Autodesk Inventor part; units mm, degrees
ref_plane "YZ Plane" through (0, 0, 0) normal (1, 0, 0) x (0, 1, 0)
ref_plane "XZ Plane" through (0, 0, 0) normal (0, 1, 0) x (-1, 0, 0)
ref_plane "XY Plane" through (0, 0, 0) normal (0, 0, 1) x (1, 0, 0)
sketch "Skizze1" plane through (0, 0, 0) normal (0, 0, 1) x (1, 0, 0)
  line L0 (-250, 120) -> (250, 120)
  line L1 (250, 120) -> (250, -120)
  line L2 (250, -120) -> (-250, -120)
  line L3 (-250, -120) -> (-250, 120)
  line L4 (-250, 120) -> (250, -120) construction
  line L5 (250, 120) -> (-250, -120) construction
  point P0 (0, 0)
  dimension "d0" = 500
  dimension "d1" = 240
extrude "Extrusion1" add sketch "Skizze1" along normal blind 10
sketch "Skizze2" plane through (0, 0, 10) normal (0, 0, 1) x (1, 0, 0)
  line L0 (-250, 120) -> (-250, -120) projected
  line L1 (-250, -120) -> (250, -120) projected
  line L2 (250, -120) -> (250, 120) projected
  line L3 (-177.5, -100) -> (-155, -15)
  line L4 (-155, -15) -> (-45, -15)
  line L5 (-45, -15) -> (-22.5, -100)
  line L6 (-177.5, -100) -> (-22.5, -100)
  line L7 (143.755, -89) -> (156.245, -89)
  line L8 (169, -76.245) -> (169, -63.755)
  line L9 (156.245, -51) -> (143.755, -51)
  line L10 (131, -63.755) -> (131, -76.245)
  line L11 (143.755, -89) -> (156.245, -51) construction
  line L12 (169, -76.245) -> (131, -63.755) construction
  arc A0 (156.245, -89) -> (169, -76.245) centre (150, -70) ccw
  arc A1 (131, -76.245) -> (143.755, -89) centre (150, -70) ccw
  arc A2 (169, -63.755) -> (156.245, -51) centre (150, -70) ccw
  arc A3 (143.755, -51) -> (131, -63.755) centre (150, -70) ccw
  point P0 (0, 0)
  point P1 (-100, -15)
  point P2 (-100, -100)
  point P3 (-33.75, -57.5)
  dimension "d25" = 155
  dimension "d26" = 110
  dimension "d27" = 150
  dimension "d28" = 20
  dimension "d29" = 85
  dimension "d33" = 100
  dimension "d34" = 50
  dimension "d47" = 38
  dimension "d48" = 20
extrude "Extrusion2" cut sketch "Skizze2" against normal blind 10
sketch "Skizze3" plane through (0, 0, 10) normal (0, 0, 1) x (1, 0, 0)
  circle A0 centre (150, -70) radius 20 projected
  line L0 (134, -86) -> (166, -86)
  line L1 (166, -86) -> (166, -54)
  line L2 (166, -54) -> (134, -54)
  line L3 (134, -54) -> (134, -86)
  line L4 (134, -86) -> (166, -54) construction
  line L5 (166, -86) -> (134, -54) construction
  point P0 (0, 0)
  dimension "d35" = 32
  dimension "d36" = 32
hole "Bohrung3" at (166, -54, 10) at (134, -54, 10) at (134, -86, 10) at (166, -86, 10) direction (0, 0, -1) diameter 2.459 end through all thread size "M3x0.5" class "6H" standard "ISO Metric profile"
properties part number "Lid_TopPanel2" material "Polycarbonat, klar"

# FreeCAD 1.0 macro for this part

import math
import FreeCAD as App
import Part
import Sketcher


def add_polygon(sketch, points):
    """Adds a closed chain of lines whose ends are joined by coincident constraints."""
    first, n = sketch.GeometryCount, len(points)
    for a, b in zip(points, points[1:] + points[:1]):
        sketch.addGeometry(Part.LineSegment(App.Vector(*a, 0), App.Vector(*b, 0)), False)
    for i in range(n):
        sketch.addConstraint(Sketcher.Constraint("Coincident", first + i, 2, first + (i + 1) % n, 1))

doc = App.newDocument("Part")
body = doc.addObject("PartDesign::Body", "Body")

# Sketch on XY plane
sketch1 = body.newObject("Sketcher::SketchObject", "Sketch")
sketch1.AttachmentSupport = (doc.getObject("XY_Plane"), [""])
sketch1.MapMode = "FlatFace"
add_polygon(sketch1, [(250, 120), (-250, 120), (-250, -120), (250, -120)])  # lines 0-3
sketch1.addConstraint(Sketcher.Constraint("Horizontal", 0))
sketch1.addConstraint(Sketcher.Constraint("Vertical", 1))
sketch1.addConstraint(Sketcher.Constraint("Horizontal", 2))
sketch1.addConstraint(Sketcher.Constraint("Vertical", 3))
sketch1.addConstraint(Sketcher.Constraint("Symmetric", 0, 2, 2, 2, -1, 1))
sketch1.addConstraint(Sketcher.Constraint("DistanceX", 0, 2, 0, 1, 500.0))
sketch1.addConstraint(Sketcher.Constraint("DistanceY", 1, 2, 1, 1, 240.0))
pad1 = body.newObject("PartDesign::Pad", "Pad")
pad1.Profile = sketch1
pad1.Length = 10

# Sketch on XY plane
sketch2 = body.newObject("Sketcher::SketchObject", "Sketch001")
sketch2.AttachmentSupport = (doc.getObject("XY_Plane"), [""])
sketch2.MapMode = "FlatFace"
sketch2.AttachmentOffset = App.Placement(App.Vector(0, 0, 10), App.Rotation())
add_polygon(sketch2, [(-155, -15), (-178, -100), (-22, -100), (-45, -15)])  # lines 0-3
sketch2.addGeometry(Part.ArcOfCircle(Part.Circle(App.Vector(150, -70, 0), App.Vector(0, 0, 1), 20), math.radians(-162), math.radians(-108)), False)  # 4
sketch2.addGeometry(Part.LineSegment(App.Vector(144, -89, 0), App.Vector(156, -89, 0)), False)  # 5
sketch2.addGeometry(Part.ArcOfCircle(Part.Circle(App.Vector(150, -70, 0), App.Vector(0, 0, 1), 20), math.radians(-72), math.radians(-18)), False)  # 6
sketch2.addGeometry(Part.LineSegment(App.Vector(169, -76, 0), App.Vector(169, -64, 0)), False)  # 7
sketch2.addGeometry(Part.ArcOfCircle(Part.Circle(App.Vector(150, -70, 0), App.Vector(0, 0, 1), 20), math.radians(18), math.radians(72)), False)  # 8
sketch2.addGeometry(Part.LineSegment(App.Vector(156, -51, 0), App.Vector(144, -51, 0)), False)  # 9
sketch2.addGeometry(Part.ArcOfCircle(Part.Circle(App.Vector(150, -70, 0), App.Vector(0, 0, 1), 20), math.radians(108), math.radians(162)), False)  # 10
sketch2.addGeometry(Part.LineSegment(App.Vector(131, -64, 0), App.Vector(131, -76, 0)), False)  # 11
sketch2.addConstraint(Sketcher.Constraint("Coincident", 4, 2, 5, 1))
sketch2.addConstraint(Sketcher.Constraint("Coincident", 5, 2, 6, 1))
sketch2.addConstraint(Sketcher.Constraint("Coincident", 6, 2, 7, 1))
sketch2.addConstraint(Sketcher.Constraint("Coincident", 7, 2, 8, 1))
sketch2.addConstraint(Sketcher.Constraint("Coincident", 8, 2, 9, 1))
sketch2.addConstraint(Sketcher.Constraint("Coincident", 9, 2, 10, 1))
sketch2.addConstraint(Sketcher.Constraint("Coincident", 10, 2, 11, 1))
sketch2.addConstraint(Sketcher.Constraint("Coincident", 11, 2, 4, 1))
sketch2.addConstraint(Sketcher.Constraint("Horizontal", 1))
sketch2.addConstraint(Sketcher.Constraint("Horizontal", 3))
sketch2.addConstraint(Sketcher.Constraint("Horizontal", 5))
sketch2.addConstraint(Sketcher.Constraint("Vertical", 7))
sketch2.addConstraint(Sketcher.Constraint("Horizontal", 9))
sketch2.addConstraint(Sketcher.Constraint("Vertical", 11))
sketch2.addConstraint(Sketcher.Constraint("Coincident", 6, 3, 4, 3))
sketch2.addConstraint(Sketcher.Constraint("Coincident", 8, 3, 4, 3))
sketch2.addConstraint(Sketcher.Constraint("Coincident", 10, 3, 4, 3))
sketch2.addConstraint(Sketcher.Constraint("Equal", 4, 6))
sketch2.addConstraint(Sketcher.Constraint("Equal", 6, 8))
sketch2.addConstraint(Sketcher.Constraint("Equal", 8, 10))
sketch2.addConstraint(Sketcher.Constraint("Horizontal", 7, 2, 10, 2))
sketch2.addConstraint(Sketcher.Constraint("Vertical", 5, 2, 8, 2))
sketch2.addConstraint(Sketcher.Constraint("Equal", 9, 7))
sketch2.addConstraint(Sketcher.Constraint("Equal", 0, 2))
sketch2.addConstraint(Sketcher.Constraint("Radius", 4, 20.0))
sketch2.addConstraint(Sketcher.Constraint("DistanceX", 1, 1, 1, 2, 155.0))
sketch2.addConstraint(Sketcher.Constraint("DistanceX", 3, 2, 3, 1, 110.0))
sketch2.addConstraint(Sketcher.Constraint("DistanceX", -1, 1, 4, 3, 150.0))
sketch2.addConstraint(Sketcher.Constraint("DistanceY", 0, 2, -1, 1, 100.0))
sketch2.addConstraint(Sketcher.Constraint("DistanceX", 3, 2, -1, 1, 155.0))
sketch2.addConstraint(Sketcher.Constraint("DistanceY", 1, 2, 2, 2, 85.0))
sketch2.addConstraint(Sketcher.Constraint("DistanceY", 4, 3, -1, 1, 70.0))
sketch2.addConstraint(Sketcher.Constraint("DistanceY", 4, 2, -1, 1, 89.0))
pocket1 = body.newObject("PartDesign::Pocket", "Pocket")
pocket1.Profile = sketch2
pocket1.Length = 10

# Sketch on XY plane
sketch3 = body.newObject("Sketcher::SketchObject", "Sketch002")
sketch3.AttachmentSupport = (doc.getObject("XY_Plane"), [""])
sketch3.MapMode = "FlatFace"
sketch3.AttachmentOffset = App.Placement(App.Vector(0, 0, 10), App.Rotation())
sketch3.addGeometry(Part.Circle(App.Vector(166, -54, 0), App.Vector(0, 0, 1), 1.2), False)
sketch3.addGeometry(Part.Circle(App.Vector(134, -54, 0), App.Vector(0, 0, 1), 1.2), False)
sketch3.addGeometry(Part.Circle(App.Vector(134, -86, 0), App.Vector(0, 0, 1), 1.2), False)
sketch3.addGeometry(Part.Circle(App.Vector(166, -86, 0), App.Vector(0, 0, 1), 1.2), False)
sketch3.addConstraint(Sketcher.Constraint("Equal", 0, 1))
sketch3.addConstraint(Sketcher.Constraint("Equal", 1, 2))
sketch3.addConstraint(Sketcher.Constraint("Equal", 2, 3))
sketch3.addConstraint(Sketcher.Constraint("Horizontal", 0, 3, 1, 3))
sketch3.addConstraint(Sketcher.Constraint("Horizontal", 2, 3, 3, 3))
sketch3.addConstraint(Sketcher.Constraint("Vertical", 1, 3, 2, 3))
sketch3.addConstraint(Sketcher.Constraint("Vertical", 0, 3, 3, 3))
sketch3.addConstraint(Sketcher.Constraint("Diameter", 0, 2.459))
sketch3.addConstraint(Sketcher.Constraint("DistanceX", -1, 1, 0, 3, 166.0))
sketch3.addConstraint(Sketcher.Constraint("DistanceY", 0, 3, -1, 1, 54.0))
sketch3.addConstraint(Sketcher.Constraint("DistanceX", -1, 1, 1, 3, 134.0))
sketch3.addConstraint(Sketcher.Constraint("DistanceY", 2, 3, -1, 1, 86.0))
doc.recompute()
hole = body.newObject("PartDesign::Hole", "Hole")
hole.Profile = sketch3
hole.ThreadType = "None"
hole.Diameter = 2.459
hole.DepthType = "ThroughAll"

doc.recompute()
